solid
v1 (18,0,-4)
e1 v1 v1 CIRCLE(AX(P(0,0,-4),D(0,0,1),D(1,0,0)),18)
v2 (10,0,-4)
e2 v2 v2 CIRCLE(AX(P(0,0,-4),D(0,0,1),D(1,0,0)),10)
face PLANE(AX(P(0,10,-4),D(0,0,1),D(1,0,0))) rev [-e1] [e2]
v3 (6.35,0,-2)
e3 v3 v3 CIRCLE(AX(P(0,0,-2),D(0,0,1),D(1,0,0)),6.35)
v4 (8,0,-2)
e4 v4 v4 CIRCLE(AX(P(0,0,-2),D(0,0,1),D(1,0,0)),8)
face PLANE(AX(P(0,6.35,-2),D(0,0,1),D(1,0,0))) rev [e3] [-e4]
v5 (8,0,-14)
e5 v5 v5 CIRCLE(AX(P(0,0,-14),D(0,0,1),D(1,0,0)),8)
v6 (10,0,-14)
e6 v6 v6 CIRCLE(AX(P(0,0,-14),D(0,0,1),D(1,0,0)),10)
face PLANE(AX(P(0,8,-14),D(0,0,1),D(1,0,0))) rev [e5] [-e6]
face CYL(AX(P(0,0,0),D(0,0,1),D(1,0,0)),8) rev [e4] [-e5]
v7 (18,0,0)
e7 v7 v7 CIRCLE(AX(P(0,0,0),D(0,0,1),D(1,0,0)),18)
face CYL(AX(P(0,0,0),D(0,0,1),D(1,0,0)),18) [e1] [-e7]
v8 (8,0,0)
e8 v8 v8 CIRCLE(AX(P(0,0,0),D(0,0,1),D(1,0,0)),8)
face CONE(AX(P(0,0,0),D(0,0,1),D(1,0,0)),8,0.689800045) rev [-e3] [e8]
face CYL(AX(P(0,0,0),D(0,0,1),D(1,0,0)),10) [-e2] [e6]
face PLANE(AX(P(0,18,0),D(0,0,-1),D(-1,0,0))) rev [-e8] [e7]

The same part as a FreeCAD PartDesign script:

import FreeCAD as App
import Part
import Sketcher
from FreeCAD import Vector

doc = App.newDocument("Part")
body = doc.addObject("PartDesign::Body", "Body")

# Sketch on YZ plane
sketch1 = body.newObject("Sketcher::SketchObject", "Sketch")
sketch1.AttachmentSupport = (doc.getObject("YZ_Plane"), [""])
sketch1.MapMode = "FlatFace"
sketch1.addGeometry([
    Part.LineSegment(Vector(18, 0, 0), Vector(8, 0, 0)),  # 0
    Part.LineSegment(Vector(8, 0, 0), Vector(6.35, -2, 0)),  # 1
    Part.LineSegment(Vector(6.35, -2, 0), Vector(8, -2, 0)),  # 2
    Part.LineSegment(Vector(8, -2, 0), Vector(8, -14, 0)),  # 3
    Part.LineSegment(Vector(8, -14, 0), Vector(10, -14, 0)),  # 4
    Part.LineSegment(Vector(10, -14, 0), Vector(10, -4, 0)),  # 5
    Part.LineSegment(Vector(10, -4, 0), Vector(18, -4, 0)),  # 6
    Part.LineSegment(Vector(18, -4, 0), Vector(18, 0, 0)),  # 7
], False)
sketch1.addConstraint([
    Sketcher.Constraint("Coincident", 0, 2, 1, 1),
    Sketcher.Constraint("Coincident", 1, 2, 2, 1),
    Sketcher.Constraint("Coincident", 2, 2, 3, 1),
    Sketcher.Constraint("Coincident", 3, 2, 4, 1),
    Sketcher.Constraint("Coincident", 4, 2, 5, 1),
    Sketcher.Constraint("Coincident", 5, 2, 6, 1),
    Sketcher.Constraint("Coincident", 6, 2, 7, 1),
    Sketcher.Constraint("Coincident", 7, 2, 0, 1),
    Sketcher.Constraint("Horizontal", 0),
    Sketcher.Constraint("Horizontal", 2),
    Sketcher.Constraint("Vertical", 3),
    Sketcher.Constraint("Horizontal", 4),
    Sketcher.Constraint("Vertical", 5),
    Sketcher.Constraint("Horizontal", 6),
    Sketcher.Constraint("Vertical", 7),
    Sketcher.Constraint("PointOnObject", 0, 2, -1),
    Sketcher.Constraint("Vertical", 0, 2, 2, 2),
    Sketcher.Constraint("Equal", 0, 5),
    Sketcher.Constraint("DistanceX", 0, 2, 0, 1, 10.0),
    Sketcher.Constraint("DistanceX", 4, 1, 4, 2, 2.0),
    Sketcher.Constraint("DistanceY", 3, 2, 3, 1, 12.0),
    Sketcher.Constraint("DistanceY", 7, 1, 7, 2, 4.0),
    Sketcher.Constraint("DistanceX", -1, 1, 0, 2, 8.0),
    Sketcher.Constraint("DistanceX", 2, 1, 2, 2, 1.65),
])
revolution = body.newObject("PartDesign::Revolution", "Revolution")
revolution.Profile = sketch1
revolution.ReferenceAxis = (sketch1, ["V_Axis"])
revolution.Angle = 360

doc.recompute()
